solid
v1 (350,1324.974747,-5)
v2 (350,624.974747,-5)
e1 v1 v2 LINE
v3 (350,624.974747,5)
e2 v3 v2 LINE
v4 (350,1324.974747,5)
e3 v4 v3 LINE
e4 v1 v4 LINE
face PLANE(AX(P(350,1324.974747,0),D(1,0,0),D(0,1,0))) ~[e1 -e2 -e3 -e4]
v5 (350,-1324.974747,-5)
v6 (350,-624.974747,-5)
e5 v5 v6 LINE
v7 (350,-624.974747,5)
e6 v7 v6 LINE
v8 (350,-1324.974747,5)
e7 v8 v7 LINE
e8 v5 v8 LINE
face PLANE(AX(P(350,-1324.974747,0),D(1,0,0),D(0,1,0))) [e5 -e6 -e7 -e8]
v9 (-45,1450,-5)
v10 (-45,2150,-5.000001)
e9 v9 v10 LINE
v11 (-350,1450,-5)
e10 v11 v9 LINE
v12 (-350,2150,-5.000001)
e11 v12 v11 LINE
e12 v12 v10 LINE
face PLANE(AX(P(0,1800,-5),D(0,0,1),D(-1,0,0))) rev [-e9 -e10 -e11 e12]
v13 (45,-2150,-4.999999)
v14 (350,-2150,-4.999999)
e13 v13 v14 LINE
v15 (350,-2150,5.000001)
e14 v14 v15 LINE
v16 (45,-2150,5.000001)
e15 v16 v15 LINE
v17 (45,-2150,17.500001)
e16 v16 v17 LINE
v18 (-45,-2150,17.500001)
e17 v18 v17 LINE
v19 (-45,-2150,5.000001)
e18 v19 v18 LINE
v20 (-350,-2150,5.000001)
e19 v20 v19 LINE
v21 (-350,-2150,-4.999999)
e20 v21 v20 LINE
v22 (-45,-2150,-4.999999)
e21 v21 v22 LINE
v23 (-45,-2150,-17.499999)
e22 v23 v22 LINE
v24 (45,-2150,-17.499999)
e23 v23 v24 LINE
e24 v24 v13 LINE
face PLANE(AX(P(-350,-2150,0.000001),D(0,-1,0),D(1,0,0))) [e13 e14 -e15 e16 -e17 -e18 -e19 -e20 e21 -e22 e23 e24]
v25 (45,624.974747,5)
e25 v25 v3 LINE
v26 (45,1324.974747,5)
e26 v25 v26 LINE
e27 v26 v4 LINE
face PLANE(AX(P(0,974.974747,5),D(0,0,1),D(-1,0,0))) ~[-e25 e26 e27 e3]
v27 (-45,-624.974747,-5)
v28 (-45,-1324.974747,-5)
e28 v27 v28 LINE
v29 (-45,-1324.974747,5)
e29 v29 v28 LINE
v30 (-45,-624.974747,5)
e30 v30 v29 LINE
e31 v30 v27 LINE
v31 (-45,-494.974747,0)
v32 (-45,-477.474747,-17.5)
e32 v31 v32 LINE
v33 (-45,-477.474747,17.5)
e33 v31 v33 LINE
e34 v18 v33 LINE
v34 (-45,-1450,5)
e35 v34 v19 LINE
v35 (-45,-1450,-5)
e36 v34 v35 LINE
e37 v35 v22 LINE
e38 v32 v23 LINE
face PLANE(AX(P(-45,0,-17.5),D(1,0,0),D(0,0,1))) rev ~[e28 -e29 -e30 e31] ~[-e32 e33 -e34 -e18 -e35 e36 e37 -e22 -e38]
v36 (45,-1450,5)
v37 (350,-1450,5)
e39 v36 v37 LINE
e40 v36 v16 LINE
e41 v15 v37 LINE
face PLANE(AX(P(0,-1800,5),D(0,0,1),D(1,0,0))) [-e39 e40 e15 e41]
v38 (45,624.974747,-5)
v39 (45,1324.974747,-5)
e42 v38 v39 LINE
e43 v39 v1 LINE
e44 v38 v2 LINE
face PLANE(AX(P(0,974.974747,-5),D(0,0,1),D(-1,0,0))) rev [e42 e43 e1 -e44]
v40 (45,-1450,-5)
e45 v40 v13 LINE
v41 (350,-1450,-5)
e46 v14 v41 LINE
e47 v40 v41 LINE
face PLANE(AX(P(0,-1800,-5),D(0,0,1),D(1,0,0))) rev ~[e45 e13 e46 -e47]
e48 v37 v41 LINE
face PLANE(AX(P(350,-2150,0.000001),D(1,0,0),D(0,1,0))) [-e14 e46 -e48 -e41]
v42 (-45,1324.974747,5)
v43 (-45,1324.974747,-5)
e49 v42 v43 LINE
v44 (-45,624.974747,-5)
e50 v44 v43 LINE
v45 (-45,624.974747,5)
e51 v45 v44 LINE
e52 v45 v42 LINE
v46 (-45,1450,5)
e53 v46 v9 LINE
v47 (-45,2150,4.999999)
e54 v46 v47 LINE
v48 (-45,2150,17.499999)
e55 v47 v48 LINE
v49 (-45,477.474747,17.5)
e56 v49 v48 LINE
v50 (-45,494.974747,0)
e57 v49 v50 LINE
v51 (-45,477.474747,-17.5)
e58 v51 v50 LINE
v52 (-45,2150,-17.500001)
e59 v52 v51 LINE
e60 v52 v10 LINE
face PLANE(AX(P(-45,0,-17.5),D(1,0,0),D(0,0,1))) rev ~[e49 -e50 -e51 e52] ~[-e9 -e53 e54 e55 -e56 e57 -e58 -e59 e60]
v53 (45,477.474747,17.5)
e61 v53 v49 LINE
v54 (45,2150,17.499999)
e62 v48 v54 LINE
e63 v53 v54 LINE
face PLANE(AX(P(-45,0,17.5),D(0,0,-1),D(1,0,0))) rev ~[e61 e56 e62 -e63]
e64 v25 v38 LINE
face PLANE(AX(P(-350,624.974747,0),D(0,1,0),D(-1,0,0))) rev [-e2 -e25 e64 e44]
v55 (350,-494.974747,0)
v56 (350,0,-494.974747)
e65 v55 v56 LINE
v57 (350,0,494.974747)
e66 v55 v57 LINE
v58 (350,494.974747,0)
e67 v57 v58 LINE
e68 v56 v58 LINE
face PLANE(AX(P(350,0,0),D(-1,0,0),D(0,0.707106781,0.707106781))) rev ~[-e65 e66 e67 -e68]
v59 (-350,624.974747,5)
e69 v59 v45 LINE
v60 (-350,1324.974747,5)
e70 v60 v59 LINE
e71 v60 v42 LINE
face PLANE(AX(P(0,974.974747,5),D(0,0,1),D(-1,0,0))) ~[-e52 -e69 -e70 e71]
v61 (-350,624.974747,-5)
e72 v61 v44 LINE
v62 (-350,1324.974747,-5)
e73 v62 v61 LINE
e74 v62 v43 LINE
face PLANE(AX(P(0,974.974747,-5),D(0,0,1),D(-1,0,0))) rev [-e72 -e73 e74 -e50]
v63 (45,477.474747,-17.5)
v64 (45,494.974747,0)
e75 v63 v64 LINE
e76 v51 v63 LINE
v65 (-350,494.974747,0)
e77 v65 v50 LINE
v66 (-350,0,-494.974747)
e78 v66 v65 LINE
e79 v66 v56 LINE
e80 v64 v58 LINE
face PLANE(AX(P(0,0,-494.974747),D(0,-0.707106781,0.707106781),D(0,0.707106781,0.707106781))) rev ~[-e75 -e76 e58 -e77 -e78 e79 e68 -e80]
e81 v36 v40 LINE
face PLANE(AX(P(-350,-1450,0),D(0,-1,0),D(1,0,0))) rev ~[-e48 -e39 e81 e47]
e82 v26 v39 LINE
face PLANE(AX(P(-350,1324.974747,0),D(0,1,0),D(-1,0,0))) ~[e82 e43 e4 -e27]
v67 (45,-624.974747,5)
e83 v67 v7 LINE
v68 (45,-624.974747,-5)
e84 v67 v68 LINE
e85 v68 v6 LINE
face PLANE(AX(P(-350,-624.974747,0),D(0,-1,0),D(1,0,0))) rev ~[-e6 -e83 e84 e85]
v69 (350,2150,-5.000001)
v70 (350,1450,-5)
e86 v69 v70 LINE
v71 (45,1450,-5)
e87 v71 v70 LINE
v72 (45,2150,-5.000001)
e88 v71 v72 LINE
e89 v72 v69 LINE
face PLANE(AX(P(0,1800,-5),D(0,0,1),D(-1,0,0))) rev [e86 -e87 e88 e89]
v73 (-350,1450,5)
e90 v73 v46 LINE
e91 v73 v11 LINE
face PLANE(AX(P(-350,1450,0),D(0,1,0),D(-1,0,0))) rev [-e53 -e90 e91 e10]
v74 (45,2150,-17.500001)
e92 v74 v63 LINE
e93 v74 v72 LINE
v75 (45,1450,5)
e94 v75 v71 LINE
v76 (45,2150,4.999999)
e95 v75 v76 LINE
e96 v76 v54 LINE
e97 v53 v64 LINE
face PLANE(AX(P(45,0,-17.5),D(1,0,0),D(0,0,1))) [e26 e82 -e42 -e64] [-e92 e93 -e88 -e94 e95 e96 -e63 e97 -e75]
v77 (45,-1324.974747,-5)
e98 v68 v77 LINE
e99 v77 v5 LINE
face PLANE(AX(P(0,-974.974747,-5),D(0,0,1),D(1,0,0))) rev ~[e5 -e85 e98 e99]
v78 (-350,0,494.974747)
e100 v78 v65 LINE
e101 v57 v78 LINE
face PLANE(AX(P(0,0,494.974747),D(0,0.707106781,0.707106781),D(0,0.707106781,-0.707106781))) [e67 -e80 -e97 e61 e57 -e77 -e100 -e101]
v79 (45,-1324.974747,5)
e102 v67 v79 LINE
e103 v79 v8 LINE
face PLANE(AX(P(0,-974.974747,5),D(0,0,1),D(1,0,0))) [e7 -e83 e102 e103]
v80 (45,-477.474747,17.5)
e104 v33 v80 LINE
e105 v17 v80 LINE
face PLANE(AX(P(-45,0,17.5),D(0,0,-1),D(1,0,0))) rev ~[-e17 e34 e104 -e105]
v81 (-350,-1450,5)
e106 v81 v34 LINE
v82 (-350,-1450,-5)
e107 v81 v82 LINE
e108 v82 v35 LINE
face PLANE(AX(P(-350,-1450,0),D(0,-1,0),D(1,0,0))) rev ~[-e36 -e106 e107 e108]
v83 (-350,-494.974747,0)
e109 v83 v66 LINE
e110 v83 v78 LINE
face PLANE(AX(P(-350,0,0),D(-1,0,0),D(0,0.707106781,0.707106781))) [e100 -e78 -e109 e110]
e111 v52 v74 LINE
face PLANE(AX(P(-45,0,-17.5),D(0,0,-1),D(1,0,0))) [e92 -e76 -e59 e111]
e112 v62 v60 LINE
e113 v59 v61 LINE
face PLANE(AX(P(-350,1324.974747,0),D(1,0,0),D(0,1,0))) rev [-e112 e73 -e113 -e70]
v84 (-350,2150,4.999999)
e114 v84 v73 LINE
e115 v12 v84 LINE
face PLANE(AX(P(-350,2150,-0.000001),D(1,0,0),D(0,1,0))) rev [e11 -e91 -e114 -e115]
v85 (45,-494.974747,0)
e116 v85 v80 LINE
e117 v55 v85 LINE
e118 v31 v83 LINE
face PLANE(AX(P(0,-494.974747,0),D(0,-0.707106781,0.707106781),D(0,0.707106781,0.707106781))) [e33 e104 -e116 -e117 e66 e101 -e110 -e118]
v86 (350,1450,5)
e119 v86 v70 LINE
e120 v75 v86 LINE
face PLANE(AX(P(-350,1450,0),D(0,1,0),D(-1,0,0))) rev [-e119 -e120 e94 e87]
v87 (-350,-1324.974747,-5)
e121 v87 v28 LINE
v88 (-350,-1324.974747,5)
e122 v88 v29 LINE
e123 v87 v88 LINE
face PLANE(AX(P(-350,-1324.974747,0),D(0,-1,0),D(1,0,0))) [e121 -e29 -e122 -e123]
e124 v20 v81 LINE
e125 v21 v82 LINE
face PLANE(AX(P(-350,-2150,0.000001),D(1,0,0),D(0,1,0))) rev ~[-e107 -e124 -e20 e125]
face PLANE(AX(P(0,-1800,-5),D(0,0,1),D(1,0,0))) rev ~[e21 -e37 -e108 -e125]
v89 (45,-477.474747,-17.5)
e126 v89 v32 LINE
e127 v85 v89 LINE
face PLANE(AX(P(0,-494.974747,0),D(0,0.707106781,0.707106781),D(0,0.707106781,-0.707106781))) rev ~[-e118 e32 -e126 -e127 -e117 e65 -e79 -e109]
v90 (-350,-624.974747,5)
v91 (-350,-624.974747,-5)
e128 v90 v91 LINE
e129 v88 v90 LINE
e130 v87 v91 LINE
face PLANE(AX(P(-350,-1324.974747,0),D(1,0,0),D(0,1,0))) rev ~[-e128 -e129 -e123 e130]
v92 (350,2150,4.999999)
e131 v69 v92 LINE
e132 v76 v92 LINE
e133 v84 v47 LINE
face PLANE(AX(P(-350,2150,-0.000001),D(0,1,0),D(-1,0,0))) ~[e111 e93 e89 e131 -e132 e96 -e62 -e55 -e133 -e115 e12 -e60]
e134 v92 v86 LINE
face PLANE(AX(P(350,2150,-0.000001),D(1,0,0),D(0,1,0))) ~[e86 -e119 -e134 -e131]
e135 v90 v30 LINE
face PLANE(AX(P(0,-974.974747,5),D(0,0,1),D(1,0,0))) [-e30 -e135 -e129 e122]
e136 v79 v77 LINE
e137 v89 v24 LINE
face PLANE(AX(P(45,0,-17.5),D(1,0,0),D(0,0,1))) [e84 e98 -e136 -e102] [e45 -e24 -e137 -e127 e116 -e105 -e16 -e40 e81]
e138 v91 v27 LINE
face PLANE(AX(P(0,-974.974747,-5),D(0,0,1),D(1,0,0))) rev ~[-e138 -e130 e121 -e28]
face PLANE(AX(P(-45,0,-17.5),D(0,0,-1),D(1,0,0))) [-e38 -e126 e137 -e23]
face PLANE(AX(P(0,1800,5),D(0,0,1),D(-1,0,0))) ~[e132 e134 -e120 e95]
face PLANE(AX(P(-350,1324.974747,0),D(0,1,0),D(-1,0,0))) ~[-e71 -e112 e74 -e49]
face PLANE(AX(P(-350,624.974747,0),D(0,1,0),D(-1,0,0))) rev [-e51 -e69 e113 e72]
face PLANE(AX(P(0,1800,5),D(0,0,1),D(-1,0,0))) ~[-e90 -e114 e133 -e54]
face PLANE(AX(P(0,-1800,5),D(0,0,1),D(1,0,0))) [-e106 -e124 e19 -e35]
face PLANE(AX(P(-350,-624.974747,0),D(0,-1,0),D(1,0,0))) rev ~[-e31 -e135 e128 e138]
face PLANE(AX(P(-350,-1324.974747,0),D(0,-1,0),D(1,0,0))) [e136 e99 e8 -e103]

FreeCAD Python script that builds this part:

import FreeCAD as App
import Part
import Sketcher

doc = App.newDocument("Part")
params = doc.addObject("Spreadsheet::Sheet", "Params")
for row, (alias, value) in enumerate([
    ("sketch1_width", "700 mm"),
    ("pad1_length", "700 mm"),
    ("sketch2_width", "90 mm"),
    ("sketch2_height", "35 mm"),
    ("pad2_length", "4300 mm"),
    ("sketch3_width", "700 mm"),
    ("pad3_length", "10 mm"),
    ("sketch4_width", "700 mm"),
    ("pad4_length", "10 mm"),
], start=1):
    params.set(f"A{row}", alias)
    params.set(f"B{row}", "=" + value)
    params.setAlias(f"B{row}", alias)

body = doc.addObject("PartDesign::Body", "Body")

# Sketch on XZ plane
sketch1 = body.newObject("Sketcher::SketchObject", "Sketch")
sketch1.AttachmentSupport = (doc.getObject("XZ_Plane"), [""])
sketch1.MapMode = "FlatFace"
sketch1.addGeometry([
    Part.LineSegment(App.Vector(-350, -350, 0), App.Vector(-350, 350, 0)),
    Part.LineSegment(App.Vector(-350, 350, 0), App.Vector(350, 350, 0)),
    Part.LineSegment(App.Vector(350, 350, 0), App.Vector(350, -350, 0)),
    Part.LineSegment(App.Vector(350, -350, 0), App.Vector(-350, -350, 0)),
], False)
sketch1.addConstraint([
    Sketcher.Constraint("Coincident", 0, 2, 1, 1),
    Sketcher.Constraint("Coincident", 1, 2, 2, 1),
    Sketcher.Constraint("Coincident", 2, 2, 3, 1),
    Sketcher.Constraint("Coincident", 3, 2, 0, 1),
    Sketcher.Constraint("Vertical", 0),
    Sketcher.Constraint("Horizontal", 1),
    Sketcher.Constraint("Vertical", 2),
    Sketcher.Constraint("Horizontal", 3),
    Sketcher.Constraint("Symmetric", 0, 2, 2, 2, -1, 1),
    Sketcher.Constraint("Equal", 3, 0),
    Sketcher.Constraint("DistanceX", 1, 1, 1, 2, 700.0),
])
sketch1.setExpression("Constraints[10]", "Params.sketch1_width")
pad1 = body.newObject("PartDesign::Pad", "Pad")
pad1.Profile = sketch1
pad1.setExpression("Length", "Params.pad1_length")
pad1.Midplane = True

# Sketch on an angled plane
sketch2 = body.newObject("Sketcher::SketchObject", "Sketch001")
sketch2.Placement = App.Placement(App.Vector(0, 0, 0), App.Rotation(App.Vector(0, -1, 0), App.Vector(0.707106781, 0, 0.707106781), App.Vector(-0.707106781, 0, 0.707106781), "ZXY"))
sketch2.addGeometry([
    Part.LineSegment(App.Vector(-45, 17, 0), App.Vector(-45, -17, 0)),
    Part.LineSegment(App.Vector(-45, -17, 0), App.Vector(45, -17, 0)),
    Part.LineSegment(App.Vector(45, -17, 0), App.Vector(45, 17, 0)),
    Part.LineSegment(App.Vector(45, 17, 0), App.Vector(-45, 17, 0)),
], False)
sketch2.addConstraint([
    Sketcher.Constraint("Coincident", 0, 2, 1, 1),
    Sketcher.Constraint("Coincident", 1, 2, 2, 1),
    Sketcher.Constraint("Coincident", 2, 2, 3, 1),
    Sketcher.Constraint("Coincident", 3, 2, 0, 1),
    Sketcher.Constraint("Vertical", 0),
    Sketcher.Constraint("Horizontal", 1),
    Sketcher.Constraint("Vertical", 2),
    Sketcher.Constraint("Horizontal", 3),
    Sketcher.Constraint("Symmetric", 0, 2, 2, 2, -1, 1),
    Sketcher.Constraint("DistanceX", 1, 1, 1, 2, 90.0),
    Sketcher.Constraint("DistanceY", 0, 2, 0, 1, 35.0),
])
sketch2.setExpression("Constraints[9]", "Params.sketch2_width")
sketch2.setExpression("Constraints[10]", "Params.sketch2_height")
pad2 = body.newObject("PartDesign::Pad", "Pad001")
pad2.Profile = sketch2
pad2.setExpression("Length", "Params.pad2_length")
pad2.Midplane = True

# Sketch on an angled plane
sketch3 = body.newObject("Sketcher::SketchObject", "Sketch002")
sketch3.Placement = App.Placement(App.Vector(0, 0, 0), App.Rotation(App.Vector(0, -1, 0), App.Vector(0.707106781, 0, -0.707106781), App.Vector(0.707106781, 0, 0.707106781), "ZXY"))
sketch3.addGeometry([
    Part.LineSegment(App.Vector(-350, -625, 0), App.Vector(-350, -1325, 0)),
    Part.LineSegment(App.Vector(-350, -1325, 0), App.Vector(350, -1325, 0)),
    Part.LineSegment(App.Vector(350, -1325, 0), App.Vector(350, -625, 0)),
    Part.LineSegment(App.Vector(350, -625, 0), App.Vector(-350, -625, 0)),
], False)
sketch3.addConstraint([
    Sketcher.Constraint("Coincident", 0, 2, 1, 1),
    Sketcher.Constraint("Coincident", 1, 2, 2, 1),
    Sketcher.Constraint("Coincident", 2, 2, 3, 1),
    Sketcher.Constraint("Coincident", 3, 2, 0, 1),
    Sketcher.Constraint("Vertical", 0),
    Sketcher.Constraint("Horizontal", 1),
    Sketcher.Constraint("Vertical", 2),
    Sketcher.Constraint("Horizontal", 3),
    Sketcher.Constraint("Equal", 3, 0),
    Sketcher.Constraint("DistanceX", 1, 1, 1, 2, 700.0),
    Sketcher.Constraint("DistanceX", 0, 2, -1, 1, 350.0),
    Sketcher.Constraint("DistanceY", 0, 2, -1, 1, 1324.974746),
])
sketch3.setExpression("Constraints[9]", "Params.sketch3_width")
pad3 = body.newObject("PartDesign::Pad", "Pad002")
pad3.Profile = sketch3
pad3.setExpression("Length", "Params.pad3_length")
pad3.Midplane = True

# Sketch on an angled plane
sketch4 = body.newObject("Sketcher::SketchObject", "Sketch003")
sketch4.Placement = App.Placement(App.Vector(0, 0, 0), App.Rotation(App.Vector(0, -1, 0), App.Vector(0.707106781, 0, -0.707106781), App.Vector(0.707106781, 0, 0.707106781), "ZXY"))
sketch4.addGeometry([
    Part.LineSegment(App.Vector(-350, -1450, 0), App.Vector(-350, -2150, 0)),
    Part.LineSegment(App.Vector(-350, -2150, 0), App.Vector(350, -2150, 0)),
    Part.LineSegment(App.Vector(350, -2150, 0), App.Vector(350, -1450, 0)),
    Part.LineSegment(App.Vector(350, -1450, 0), App.Vector(-350, -1450, 0)),
], False)
sketch4.addConstraint([
    Sketcher.Constraint("Coincident", 0, 2, 1, 1),
    Sketcher.Constraint("Coincident", 1, 2, 2, 1),
    Sketcher.Constraint("Coincident", 2, 2, 3, 1),
    Sketcher.Constraint("Coincident", 3, 2, 0, 1),
    Sketcher.Constraint("Vertical", 0),
    Sketcher.Constraint("Horizontal", 1),
    Sketcher.Constraint("Vertical", 2),
    Sketcher.Constraint("Horizontal", 3),
    Sketcher.Constraint("Equal", 3, 0),
    Sketcher.Constraint("DistanceX", 1, 1, 1, 2, 700.0),
    Sketcher.Constraint("DistanceX", 0, 2, -1, 1, 350.0),
    Sketcher.Constraint("DistanceY", 0, 2, -1, 1, 2149.999999),
])
sketch4.setExpression("Constraints[9]", "Params.sketch4_width")
pad4 = body.newObject("PartDesign::Pad", "Pad003")
pad4.Profile = sketch4
pad4.setExpression("Length", "Params.pad4_length")
pad4.Midplane = True
doc.recompute()

datumplane = body.newObject("PartDesign::Plane", "DatumPlane")
datumplane.Placement = App.Placement(App.Vector(0, 0, 0), App.Rotation(App.Vector(-0.707106781, 0, -0.707106781), App.Vector(0, -1, 0), App.Vector(-0.707106781, 0, 0.707106781), "ZXY"))
mirrored = body.newObject("PartDesign::Mirrored", "Mirrored")
mirrored.Originals = [pad3, pad4]
mirrored.MirrorPlane = (datumplane, [""])
body.Tip = mirrored
body2 = doc.addObject("PartDesign::Body", "Body001")
doc.recompute()

body.Placement = App.Placement(App.Vector(0, 0, 0), App.Rotation(App.Vector(0.357406744, -0.357406744, 0.86285621), 98.421058))
boolean = body2.newObject("PartDesign::Boolean", "Boolean")
boolean.Type = "Fuse"
boolean.addObjects([body])

doc.recompute()
